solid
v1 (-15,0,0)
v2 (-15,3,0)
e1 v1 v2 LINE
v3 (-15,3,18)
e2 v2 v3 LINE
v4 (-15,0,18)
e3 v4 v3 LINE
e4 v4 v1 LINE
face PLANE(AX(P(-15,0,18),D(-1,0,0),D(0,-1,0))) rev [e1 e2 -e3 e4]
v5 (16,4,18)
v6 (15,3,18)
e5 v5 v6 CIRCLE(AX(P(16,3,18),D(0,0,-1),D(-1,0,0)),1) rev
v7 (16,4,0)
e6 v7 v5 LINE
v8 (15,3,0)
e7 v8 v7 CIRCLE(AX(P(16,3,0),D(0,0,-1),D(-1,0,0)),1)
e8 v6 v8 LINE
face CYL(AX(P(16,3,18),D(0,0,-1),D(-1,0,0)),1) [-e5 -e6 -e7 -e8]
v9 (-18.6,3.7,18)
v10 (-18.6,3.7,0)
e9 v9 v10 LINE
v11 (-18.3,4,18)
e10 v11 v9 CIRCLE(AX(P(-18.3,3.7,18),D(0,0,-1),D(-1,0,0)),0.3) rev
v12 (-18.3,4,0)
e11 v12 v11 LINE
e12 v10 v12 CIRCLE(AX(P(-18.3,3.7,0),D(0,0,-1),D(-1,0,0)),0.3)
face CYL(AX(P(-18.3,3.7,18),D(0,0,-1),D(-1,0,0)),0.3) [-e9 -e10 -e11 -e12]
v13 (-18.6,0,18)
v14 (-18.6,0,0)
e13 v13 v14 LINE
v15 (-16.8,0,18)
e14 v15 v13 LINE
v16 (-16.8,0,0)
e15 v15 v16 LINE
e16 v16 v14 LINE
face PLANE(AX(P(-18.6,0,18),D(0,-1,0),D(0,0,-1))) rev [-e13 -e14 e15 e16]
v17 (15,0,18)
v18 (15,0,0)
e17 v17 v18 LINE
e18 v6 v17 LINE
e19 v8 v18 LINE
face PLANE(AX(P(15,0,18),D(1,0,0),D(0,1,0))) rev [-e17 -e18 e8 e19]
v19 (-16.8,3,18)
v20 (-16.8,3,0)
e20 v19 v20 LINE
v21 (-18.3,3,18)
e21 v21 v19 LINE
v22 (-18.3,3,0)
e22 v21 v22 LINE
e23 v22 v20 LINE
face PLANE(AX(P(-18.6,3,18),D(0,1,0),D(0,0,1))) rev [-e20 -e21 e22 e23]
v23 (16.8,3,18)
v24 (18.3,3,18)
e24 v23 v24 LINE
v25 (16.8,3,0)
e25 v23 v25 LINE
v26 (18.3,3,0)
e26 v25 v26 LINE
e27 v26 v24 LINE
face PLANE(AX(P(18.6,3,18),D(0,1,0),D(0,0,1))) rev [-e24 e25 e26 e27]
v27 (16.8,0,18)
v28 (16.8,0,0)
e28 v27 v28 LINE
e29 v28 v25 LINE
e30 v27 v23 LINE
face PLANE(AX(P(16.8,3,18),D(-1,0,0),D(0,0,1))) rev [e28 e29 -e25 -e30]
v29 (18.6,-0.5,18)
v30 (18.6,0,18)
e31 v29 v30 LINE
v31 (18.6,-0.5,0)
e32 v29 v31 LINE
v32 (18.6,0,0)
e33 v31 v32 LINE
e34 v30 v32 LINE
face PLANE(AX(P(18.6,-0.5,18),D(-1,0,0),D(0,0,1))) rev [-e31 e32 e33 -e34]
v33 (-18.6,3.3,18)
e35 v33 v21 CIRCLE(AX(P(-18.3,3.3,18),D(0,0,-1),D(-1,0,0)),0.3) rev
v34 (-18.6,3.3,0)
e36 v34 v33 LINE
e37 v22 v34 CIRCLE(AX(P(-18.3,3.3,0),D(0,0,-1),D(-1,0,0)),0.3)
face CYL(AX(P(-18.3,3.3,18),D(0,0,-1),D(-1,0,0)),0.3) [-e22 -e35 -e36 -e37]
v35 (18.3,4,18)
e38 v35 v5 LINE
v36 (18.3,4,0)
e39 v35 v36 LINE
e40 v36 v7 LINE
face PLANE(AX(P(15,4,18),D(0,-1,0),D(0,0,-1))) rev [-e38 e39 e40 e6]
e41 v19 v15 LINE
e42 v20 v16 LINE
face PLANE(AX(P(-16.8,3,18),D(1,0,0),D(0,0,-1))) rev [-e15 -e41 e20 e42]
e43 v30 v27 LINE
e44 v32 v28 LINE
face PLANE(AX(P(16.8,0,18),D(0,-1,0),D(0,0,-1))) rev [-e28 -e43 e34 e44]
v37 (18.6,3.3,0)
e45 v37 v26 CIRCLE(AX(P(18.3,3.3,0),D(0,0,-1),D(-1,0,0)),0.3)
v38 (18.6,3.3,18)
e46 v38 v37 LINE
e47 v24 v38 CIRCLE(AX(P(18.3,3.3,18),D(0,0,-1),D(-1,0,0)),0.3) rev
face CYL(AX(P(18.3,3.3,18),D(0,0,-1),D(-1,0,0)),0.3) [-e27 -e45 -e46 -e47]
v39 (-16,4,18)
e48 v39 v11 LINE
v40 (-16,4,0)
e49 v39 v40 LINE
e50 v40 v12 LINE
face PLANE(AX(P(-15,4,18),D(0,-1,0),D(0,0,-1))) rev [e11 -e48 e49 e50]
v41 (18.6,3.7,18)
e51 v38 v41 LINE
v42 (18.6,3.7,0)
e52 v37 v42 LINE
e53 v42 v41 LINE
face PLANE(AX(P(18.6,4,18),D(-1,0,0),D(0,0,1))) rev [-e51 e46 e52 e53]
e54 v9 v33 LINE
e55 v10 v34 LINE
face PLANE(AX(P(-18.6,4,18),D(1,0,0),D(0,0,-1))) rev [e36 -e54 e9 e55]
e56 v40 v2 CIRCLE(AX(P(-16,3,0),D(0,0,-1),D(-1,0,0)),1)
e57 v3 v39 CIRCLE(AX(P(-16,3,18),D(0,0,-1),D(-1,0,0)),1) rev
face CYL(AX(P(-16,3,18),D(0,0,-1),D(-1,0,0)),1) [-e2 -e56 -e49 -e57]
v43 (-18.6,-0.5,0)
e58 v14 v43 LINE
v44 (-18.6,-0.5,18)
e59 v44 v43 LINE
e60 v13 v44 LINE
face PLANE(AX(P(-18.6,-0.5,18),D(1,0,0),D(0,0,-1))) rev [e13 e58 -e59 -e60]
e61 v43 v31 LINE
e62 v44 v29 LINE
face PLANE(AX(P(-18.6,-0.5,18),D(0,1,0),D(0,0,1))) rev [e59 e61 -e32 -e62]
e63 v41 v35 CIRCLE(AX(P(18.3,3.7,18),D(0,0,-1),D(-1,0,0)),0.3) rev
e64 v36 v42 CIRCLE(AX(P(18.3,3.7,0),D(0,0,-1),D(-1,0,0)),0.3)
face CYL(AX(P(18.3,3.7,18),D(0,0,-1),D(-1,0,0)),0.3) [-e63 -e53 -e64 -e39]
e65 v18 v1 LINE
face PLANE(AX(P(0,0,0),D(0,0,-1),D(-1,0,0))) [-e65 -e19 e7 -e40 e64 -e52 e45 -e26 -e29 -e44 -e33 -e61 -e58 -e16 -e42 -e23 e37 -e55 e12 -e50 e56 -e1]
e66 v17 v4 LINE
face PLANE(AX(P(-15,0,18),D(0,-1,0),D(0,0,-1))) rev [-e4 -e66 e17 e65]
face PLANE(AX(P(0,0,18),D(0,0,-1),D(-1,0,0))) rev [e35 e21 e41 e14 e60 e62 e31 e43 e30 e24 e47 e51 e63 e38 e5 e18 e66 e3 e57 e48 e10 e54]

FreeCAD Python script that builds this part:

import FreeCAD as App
import Part
import Sketcher

V = App.Vector


def edges_at(feature, points):
    """Names of the edges that pass closest to the given points."""
    edges = feature.Shape.Edges
    near = lambda p: min(range(len(edges)), key=lambda i: edges[i].distToShape(Part.Vertex(*p))[0])
    return sorted({f"Edge{near(p) + 1}" for p in points})

doc = App.newDocument("Part")
body = doc.addObject("PartDesign::Body", "Body")

# Sketch on XY plane
sketch1 = body.newObject("Sketcher::SketchObject", "Sketch")
sketch1.AttachmentSupport = (doc.getObject("XY_Plane"), [""])
sketch1.MapMode = "FlatFace"
sketch1.addGeometry([
    Part.LineSegment(V(-15, 0, 0), V(-15, 4, 0)),  # 0
    Part.LineSegment(V(-15, 4, 0), V(-18.6, 4, 0)),  # 1
    Part.LineSegment(V(-18.6, 4, 0), V(-18.6, 3, 0)),  # 2
    Part.LineSegment(V(-18.6, 3, 0), V(-16.8, 3, 0)),  # 3
    Part.LineSegment(V(-16.8, 3, 0), V(-16.8, 0, 0)),  # 4
    Part.LineSegment(V(-16.8, 0, 0), V(-18.6, 0, 0)),  # 5
    Part.LineSegment(V(-18.6, 0, 0), V(-18.6, -0.5, 0)),  # 6
    Part.LineSegment(V(-18.6, -0.5, 0), V(18.6, -0.5, 0)),  # 7
    Part.LineSegment(V(18.6, -0.5, 0), V(18.6, 0, 0)),  # 8
    Part.LineSegment(V(18.6, 0, 0), V(16.8, 0, 0)),  # 9
    Part.LineSegment(V(16.8, 0, 0), V(16.8, 3, 0)),  # 10
    Part.LineSegment(V(16.8, 3, 0), V(18.6, 3, 0)),  # 11
    Part.LineSegment(V(18.6, 3, 0), V(18.6, 4, 0)),  # 12
    Part.LineSegment(V(18.6, 4, 0), V(15, 4, 0)),  # 13
    Part.LineSegment(V(15, 4, 0), V(15, 0, 0)),  # 14
    Part.LineSegment(V(15, 0, 0), V(-15, 0, 0)),  # 15
], False)
sketch1.addConstraint([
    Sketcher.Constraint("Coincident", 0, 2, 1, 1),
    Sketcher.Constraint("Coincident", 1, 2, 2, 1),
    Sketcher.Constraint("Coincident", 2, 2, 3, 1),
    Sketcher.Constraint("Coincident", 3, 2, 4, 1),
    Sketcher.Constraint("Coincident", 4, 2, 5, 1),
    Sketcher.Constraint("Coincident", 5, 2, 6, 1),
    Sketcher.Constraint("Coincident", 6, 2, 7, 1),
    Sketcher.Constraint("Coincident", 7, 2, 8, 1),
    Sketcher.Constraint("Coincident", 8, 2, 9, 1),
    Sketcher.Constraint("Coincident", 9, 2, 10, 1),
    Sketcher.Constraint("Coincident", 10, 2, 11, 1),
    Sketcher.Constraint("Coincident", 11, 2, 12, 1),
    Sketcher.Constraint("Coincident", 12, 2, 13, 1),
    Sketcher.Constraint("Coincident", 13, 2, 14, 1),
    Sketcher.Constraint("Coincident", 14, 2, 15, 1),
    Sketcher.Constraint("Coincident", 15, 2, 0, 1),
    Sketcher.Constraint("Vertical", 0),
    Sketcher.Constraint("Horizontal", 1),
    Sketcher.Constraint("Vertical", 2),
    Sketcher.Constraint("Horizontal", 3),
    Sketcher.Constraint("Vertical", 4),
    Sketcher.Constraint("Horizontal", 5),
    Sketcher.Constraint("Vertical", 6),
    Sketcher.Constraint("Horizontal", 7),
    Sketcher.Constraint("Vertical", 8),
    Sketcher.Constraint("Horizontal", 9),
    Sketcher.Constraint("Vertical", 10),
    Sketcher.Constraint("Horizontal", 11),
    Sketcher.Constraint("Vertical", 12),
    Sketcher.Constraint("Horizontal", 13),
    Sketcher.Constraint("Vertical", 14),
    Sketcher.Constraint("Horizontal", 15),
    Sketcher.Constraint("Symmetric", 5, 2, 8, 2, -1, 1),
    Sketcher.Constraint("Symmetric", 14, 2, 15, 2, -1, 1),
    Sketcher.Constraint("Symmetric", 4, 2, 9, 2, -2),
    Sketcher.Constraint("Symmetric", 2, 2, 11, 2, -2),
    Sketcher.Constraint("Horizontal", 1, 2, 12, 2),
    Sketcher.Constraint("Vertical", 2, 2, 5, 2),
    Sketcher.Constraint("DistanceX", 15, 2, 15, 1, 30.0),
    Sketcher.Constraint("DistanceY", 0, 1, 0, 2, 4.0),
    Sketcher.Constraint("DistanceY", 2, 2, 2, 1, 1.0),
    Sketcher.Constraint("DistanceX", 1, 2, 1, 1, 3.6),
    Sketcher.Constraint("DistanceX", 3, 1, 3, 2, 1.8),
    Sketcher.Constraint("DistanceY", 6, 2, 6, 1, 0.5),
])
pad1 = body.newObject("PartDesign::Pad", "Pad")
pad1.Profile = sketch1
pad1.Length = 18
doc.recompute()

fillet = body.newObject("PartDesign::Fillet", "Fillet")
fillet.Base = (pad1, edges_at(pad1, [(-15, 4, 9), (15, 4, 9)]))
fillet.Radius = 1
doc.recompute()

fillet2 = body.newObject("PartDesign::Fillet", "Fillet001")
fillet2.Base = (fillet, edges_at(fillet, [
    (-18.6, 3, 9),
    (-18.6, 4, 9),
    (18.6, 4, 9),
    (18.6, 3, 9),
]))
fillet2.Radius = 0.3

doc.recompute()
